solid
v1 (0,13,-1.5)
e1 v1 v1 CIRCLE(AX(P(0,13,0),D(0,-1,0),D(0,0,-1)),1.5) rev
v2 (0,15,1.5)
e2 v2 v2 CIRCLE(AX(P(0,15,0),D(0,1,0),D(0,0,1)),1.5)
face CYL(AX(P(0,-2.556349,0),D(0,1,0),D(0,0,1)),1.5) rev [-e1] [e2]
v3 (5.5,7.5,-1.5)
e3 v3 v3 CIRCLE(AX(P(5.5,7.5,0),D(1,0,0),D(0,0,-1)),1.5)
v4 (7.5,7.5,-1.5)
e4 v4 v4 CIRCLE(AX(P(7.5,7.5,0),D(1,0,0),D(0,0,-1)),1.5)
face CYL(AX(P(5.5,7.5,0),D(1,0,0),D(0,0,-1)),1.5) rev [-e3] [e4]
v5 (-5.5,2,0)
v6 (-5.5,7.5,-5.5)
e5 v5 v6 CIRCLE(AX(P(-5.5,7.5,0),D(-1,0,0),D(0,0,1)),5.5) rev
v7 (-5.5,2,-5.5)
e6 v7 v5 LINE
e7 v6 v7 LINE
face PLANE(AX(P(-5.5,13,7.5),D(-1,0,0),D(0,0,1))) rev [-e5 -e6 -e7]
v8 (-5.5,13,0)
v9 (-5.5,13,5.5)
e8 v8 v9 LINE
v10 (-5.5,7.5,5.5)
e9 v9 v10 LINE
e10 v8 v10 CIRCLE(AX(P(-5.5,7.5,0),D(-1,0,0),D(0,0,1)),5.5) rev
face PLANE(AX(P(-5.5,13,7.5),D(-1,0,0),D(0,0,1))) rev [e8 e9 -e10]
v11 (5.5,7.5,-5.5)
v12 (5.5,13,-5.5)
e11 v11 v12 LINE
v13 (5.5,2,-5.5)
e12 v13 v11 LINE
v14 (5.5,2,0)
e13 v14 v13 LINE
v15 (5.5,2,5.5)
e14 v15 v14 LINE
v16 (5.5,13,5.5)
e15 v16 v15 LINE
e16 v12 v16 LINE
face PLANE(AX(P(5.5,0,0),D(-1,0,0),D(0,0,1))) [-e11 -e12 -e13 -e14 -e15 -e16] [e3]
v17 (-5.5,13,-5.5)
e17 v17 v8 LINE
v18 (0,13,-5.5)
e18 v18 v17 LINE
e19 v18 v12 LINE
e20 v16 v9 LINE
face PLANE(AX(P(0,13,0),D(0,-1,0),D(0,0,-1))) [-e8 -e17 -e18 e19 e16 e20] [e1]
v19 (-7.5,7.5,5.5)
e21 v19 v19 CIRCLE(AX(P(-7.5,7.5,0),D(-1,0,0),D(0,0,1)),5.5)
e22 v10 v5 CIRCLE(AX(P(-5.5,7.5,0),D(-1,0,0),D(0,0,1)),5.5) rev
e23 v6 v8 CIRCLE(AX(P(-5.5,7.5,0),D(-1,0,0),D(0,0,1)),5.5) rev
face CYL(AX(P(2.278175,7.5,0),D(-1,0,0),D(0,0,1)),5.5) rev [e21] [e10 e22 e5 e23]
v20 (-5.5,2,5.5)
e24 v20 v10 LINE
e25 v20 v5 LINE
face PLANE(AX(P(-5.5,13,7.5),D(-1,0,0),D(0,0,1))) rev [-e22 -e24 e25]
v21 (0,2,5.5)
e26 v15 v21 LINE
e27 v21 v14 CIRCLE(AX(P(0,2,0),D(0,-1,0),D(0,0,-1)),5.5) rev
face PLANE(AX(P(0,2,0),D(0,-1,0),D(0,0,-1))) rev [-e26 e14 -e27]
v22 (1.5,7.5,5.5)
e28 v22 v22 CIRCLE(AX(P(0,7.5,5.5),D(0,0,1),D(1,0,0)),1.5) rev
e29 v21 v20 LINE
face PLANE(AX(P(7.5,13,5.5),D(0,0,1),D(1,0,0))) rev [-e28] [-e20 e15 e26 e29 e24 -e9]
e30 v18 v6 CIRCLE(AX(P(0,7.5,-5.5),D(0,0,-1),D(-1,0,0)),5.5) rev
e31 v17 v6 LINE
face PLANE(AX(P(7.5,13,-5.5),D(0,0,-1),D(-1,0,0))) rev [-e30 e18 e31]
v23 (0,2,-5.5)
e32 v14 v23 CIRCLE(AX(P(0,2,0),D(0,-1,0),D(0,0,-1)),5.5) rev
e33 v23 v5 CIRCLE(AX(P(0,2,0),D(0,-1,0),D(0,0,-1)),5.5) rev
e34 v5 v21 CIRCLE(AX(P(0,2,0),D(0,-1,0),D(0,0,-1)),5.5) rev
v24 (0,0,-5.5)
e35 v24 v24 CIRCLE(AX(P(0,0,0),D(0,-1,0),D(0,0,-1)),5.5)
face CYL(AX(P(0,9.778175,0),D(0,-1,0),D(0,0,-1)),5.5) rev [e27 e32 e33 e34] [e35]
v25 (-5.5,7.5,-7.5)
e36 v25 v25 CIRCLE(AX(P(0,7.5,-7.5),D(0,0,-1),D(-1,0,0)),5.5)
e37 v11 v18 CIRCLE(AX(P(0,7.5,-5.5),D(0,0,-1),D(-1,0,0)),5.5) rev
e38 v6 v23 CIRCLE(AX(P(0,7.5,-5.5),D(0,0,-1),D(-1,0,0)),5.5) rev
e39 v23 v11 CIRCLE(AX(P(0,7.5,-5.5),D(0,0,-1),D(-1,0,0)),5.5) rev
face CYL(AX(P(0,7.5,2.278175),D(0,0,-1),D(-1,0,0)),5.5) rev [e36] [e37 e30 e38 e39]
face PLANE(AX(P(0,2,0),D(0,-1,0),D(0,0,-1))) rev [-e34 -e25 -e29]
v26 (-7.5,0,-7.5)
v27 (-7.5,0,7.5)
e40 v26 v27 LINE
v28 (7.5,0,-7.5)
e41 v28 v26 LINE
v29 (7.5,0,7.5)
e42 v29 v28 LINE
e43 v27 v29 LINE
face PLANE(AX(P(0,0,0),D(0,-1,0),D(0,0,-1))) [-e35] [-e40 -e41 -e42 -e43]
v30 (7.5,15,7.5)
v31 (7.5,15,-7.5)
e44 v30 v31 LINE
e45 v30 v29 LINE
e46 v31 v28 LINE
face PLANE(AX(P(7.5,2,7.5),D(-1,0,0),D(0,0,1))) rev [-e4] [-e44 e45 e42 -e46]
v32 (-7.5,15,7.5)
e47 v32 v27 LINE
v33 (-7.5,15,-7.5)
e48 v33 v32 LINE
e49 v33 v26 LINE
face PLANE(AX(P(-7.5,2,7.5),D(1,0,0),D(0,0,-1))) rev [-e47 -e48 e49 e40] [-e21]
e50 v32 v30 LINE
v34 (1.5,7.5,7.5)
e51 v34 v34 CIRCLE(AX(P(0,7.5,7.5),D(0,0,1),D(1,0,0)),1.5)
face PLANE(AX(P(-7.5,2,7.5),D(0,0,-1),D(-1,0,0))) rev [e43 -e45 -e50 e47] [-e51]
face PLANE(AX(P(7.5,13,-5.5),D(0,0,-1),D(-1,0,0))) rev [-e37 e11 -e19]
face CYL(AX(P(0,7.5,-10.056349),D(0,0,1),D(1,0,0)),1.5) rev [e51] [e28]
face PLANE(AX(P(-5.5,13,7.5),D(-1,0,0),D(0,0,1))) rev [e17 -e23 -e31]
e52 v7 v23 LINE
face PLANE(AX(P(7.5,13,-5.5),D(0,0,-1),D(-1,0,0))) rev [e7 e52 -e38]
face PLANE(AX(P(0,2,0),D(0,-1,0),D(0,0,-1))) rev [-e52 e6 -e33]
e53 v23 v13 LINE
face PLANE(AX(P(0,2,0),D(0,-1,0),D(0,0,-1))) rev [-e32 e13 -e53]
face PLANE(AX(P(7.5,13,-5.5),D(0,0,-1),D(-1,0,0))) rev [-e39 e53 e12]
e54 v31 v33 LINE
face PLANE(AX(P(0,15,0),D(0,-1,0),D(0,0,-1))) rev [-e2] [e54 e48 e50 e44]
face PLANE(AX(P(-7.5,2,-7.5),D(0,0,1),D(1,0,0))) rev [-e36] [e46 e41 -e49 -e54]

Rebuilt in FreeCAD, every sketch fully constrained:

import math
import FreeCAD as App
import Part
import Sketcher
from FreeCAD import Vector


def add_polygon(sketch, points):
    """Adds a closed chain of lines whose ends are joined by coincident constraints."""
    first, n = sketch.GeometryCount, len(points)
    for a, b in zip(points, points[1:] + points[:1]):
        sketch.addGeometry(Part.LineSegment(App.Vector(*a, 0), App.Vector(*b, 0)), False)
    for i in range(n):
        sketch.addConstraint(Sketcher.Constraint("Coincident", first + i, 2, first + (i + 1) % n, 1))

doc = App.newDocument("Part")
body = doc.addObject("PartDesign::Body", "Body")

# Sketch on XZ plane
sketch1 = body.newObject("Sketcher::SketchObject", "Sketch")
sketch1.AttachmentSupport = (doc.getObject("XZ_Plane"), [""])
sketch1.MapMode = "FlatFace"
add_polygon(sketch1, [(-7.5, -7.5), (-7.5, 7.5), (7.5, 7.5), (7.5, -7.5)])  # lines 0-3
add_polygon(sketch1, [(5.5, 5.5), (-5.5, 5.5), (-5.5, -5.5), (5.5, -5.5)])  # lines 4-7
sketch1.addConstraint(Sketcher.Constraint("Vertical", 0))
sketch1.addConstraint(Sketcher.Constraint("Horizontal", 1))
sketch1.addConstraint(Sketcher.Constraint("Vertical", 2))
sketch1.addConstraint(Sketcher.Constraint("Horizontal", 3))
sketch1.addConstraint(Sketcher.Constraint("Horizontal", 4))
sketch1.addConstraint(Sketcher.Constraint("Vertical", 5))
sketch1.addConstraint(Sketcher.Constraint("Horizontal", 6))
sketch1.addConstraint(Sketcher.Constraint("Vertical", 7))
sketch1.addConstraint(Sketcher.Constraint("Symmetric", 0, 2, 2, 2, -1, 1))
sketch1.addConstraint(Sketcher.Constraint("Symmetric", 4, 2, 6, 2, -1, 1))
sketch1.addConstraint(Sketcher.Constraint("Equal", 3, 0))
sketch1.addConstraint(Sketcher.Constraint("Equal", 6, 5))
sketch1.addConstraint(Sketcher.Constraint("DistanceX", 1, 1, 1, 2, 15.0))
sketch1.addConstraint(Sketcher.Constraint("DistanceX", 4, 2, 4, 1, 11.0))
pad1 = body.newObject("PartDesign::Pad", "Pad")
pad1.Profile = sketch1
pad1.Length = 2
pad1.Reversed = True

# Sketch on XZ plane
sketch2 = body.newObject("Sketcher::SketchObject", "Sketch001")
sketch2.AttachmentSupport = (doc.getObject("XZ_Plane"), [""])
sketch2.MapMode = "FlatFace"
sketch2.AttachmentOffset = App.Placement(Vector(0, 0, -2), App.Rotation())
add_polygon(sketch2, [(-7.5, 5.5), (-7.5, 7.5), (-5.5, 7.5), (-5.5, 5.5)])  # lines 0-3
add_polygon(sketch2, [(5.5, 5.5), (5.5, 7.5), (7.5, 7.5), (7.5, 5.5)])  # lines 4-7
add_polygon(sketch2, [(5.5, -7.5), (5.5, -5.5), (7.5, -5.5), (7.5, -7.5)])  # lines 8-11
add_polygon(sketch2, [(-7.5, -7.5), (-7.5, -5.5), (-5.5, -5.5), (-5.5, -7.5)])  # lines 12-15
sketch2.addConstraint(Sketcher.Constraint("Vertical", 0))
sketch2.addConstraint(Sketcher.Constraint("Horizontal", 1))
sketch2.addConstraint(Sketcher.Constraint("Vertical", 2))
sketch2.addConstraint(Sketcher.Constraint("Horizontal", 3))
sketch2.addConstraint(Sketcher.Constraint("Vertical", 4))
sketch2.addConstraint(Sketcher.Constraint("Horizontal", 5))
sketch2.addConstraint(Sketcher.Constraint("Vertical", 6))
sketch2.addConstraint(Sketcher.Constraint("Horizontal", 7))
sketch2.addConstraint(Sketcher.Constraint("Vertical", 8))
sketch2.addConstraint(Sketcher.Constraint("Horizontal", 9))
sketch2.addConstraint(Sketcher.Constraint("Vertical", 10))
sketch2.addConstraint(Sketcher.Constraint("Horizontal", 11))
sketch2.addConstraint(Sketcher.Constraint("Vertical", 12))
sketch2.addConstraint(Sketcher.Constraint("Horizontal", 13))
sketch2.addConstraint(Sketcher.Constraint("Vertical", 14))
sketch2.addConstraint(Sketcher.Constraint("Horizontal", 15))
sketch2.addConstraint(Sketcher.Constraint("Symmetric", 2, 2, 8, 2, -1, 1))
sketch2.addConstraint(Sketcher.Constraint("Symmetric", 0, 2, 10, 2, -1, 1))
sketch2.addConstraint(Sketcher.Constraint("Symmetric", 6, 2, 12, 2, -1, 1))
sketch2.addConstraint(Sketcher.Constraint("Symmetric", 4, 2, 14, 2, -1, 1))
sketch2.addConstraint(Sketcher.Constraint("Symmetric", 1, 2, 4, 2, -2))
sketch2.addConstraint(Sketcher.Constraint("Symmetric", 3, 2, 6, 2, -2))
sketch2.addConstraint(Sketcher.Constraint("Equal", 15, 0))
sketch2.addConstraint(Sketcher.Constraint("DistanceX", 1, 1, 1, 2, 2.0))
sketch2.addConstraint(Sketcher.Constraint("DistanceX", 1, 2, 4, 2, 11.0))
sketch2.addConstraint(Sketcher.Constraint("DistanceY", 8, 2, 7, 2, 11.0))
pad2 = body.newObject("PartDesign::Pad", "Pad001")
pad2.Profile = sketch2
pad2.Length = 11
pad2.Reversed = True

# Sketch on XZ plane
sketch3 = body.newObject("Sketcher::SketchObject", "Sketch002")
sketch3.AttachmentSupport = (doc.getObject("XZ_Plane"), [""])
sketch3.MapMode = "FlatFace"
sketch3.AttachmentOffset = App.Placement(Vector(0, 0, -13), App.Rotation())
add_polygon(sketch3, [(-7.5, -7.5), (-7.5, 7.5), (7.5, 7.5), (7.5, -7.5)])  # lines 0-3
add_polygon(sketch3, [(5.5, 5.5), (-5.5, 5.5), (-5.5, -5.5), (5.5, -5.5)])  # lines 4-7
sketch3.addConstraint(Sketcher.Constraint("Vertical", 0))
sketch3.addConstraint(Sketcher.Constraint("Horizontal", 1))
sketch3.addConstraint(Sketcher.Constraint("Vertical", 2))
sketch3.addConstraint(Sketcher.Constraint("Horizontal", 3))
sketch3.addConstraint(Sketcher.Constraint("Horizontal", 4))
sketch3.addConstraint(Sketcher.Constraint("Vertical", 5))
sketch3.addConstraint(Sketcher.Constraint("Horizontal", 6))
sketch3.addConstraint(Sketcher.Constraint("Vertical", 7))
sketch3.addConstraint(Sketcher.Constraint("Symmetric", 0, 2, 2, 2, -1, 1))
sketch3.addConstraint(Sketcher.Constraint("Symmetric", 4, 2, 6, 2, -1, 1))
sketch3.addConstraint(Sketcher.Constraint("Equal", 3, 0))
sketch3.addConstraint(Sketcher.Constraint("Equal", 6, 5))
sketch3.addConstraint(Sketcher.Constraint("DistanceX", 1, 1, 1, 2, 15.0))
sketch3.addConstraint(Sketcher.Constraint("DistanceX", 4, 2, 4, 1, 11.0))
pad3 = body.newObject("PartDesign::Pad", "Pad002")
pad3.Profile = sketch3
pad3.Length = 2
pad3.Reversed = True

# Sketch on XZ plane
sketch4 = body.newObject("Sketcher::SketchObject", "Sketch003")
sketch4.AttachmentSupport = (doc.getObject("XZ_Plane"), [""])
sketch4.MapMode = "FlatFace"
sketch4.addGeometry(Part.LineSegment(Vector(5.5, 0, 0), Vector(5.5, 5.5, 0)), False)
sketch4.addGeometry(Part.LineSegment(Vector(5.5, 5.5, 0), Vector(0, 5.5, 0)), False)
sketch4.addGeometry(Part.ArcOfCircle(Part.Circle(Vector(0, 0, 0), Vector(0, 0, 1), 5.5), math.radians(0), math.radians(90)), False)
sketch4.addGeometry(Part.ArcOfCircle(Part.Circle(Vector(0, 0, 0), Vector(0, 0, 1), 5.5), math.radians(90), math.radians(180)), False)
sketch4.addGeometry(Part.LineSegment(Vector(0, 5.5, 0), Vector(-5.5, 5.5, 0)), False)
sketch4.addGeometry(Part.LineSegment(Vector(-5.5, 5.5, 0), Vector(-5.5, 0, 0)), False)
sketch4.addGeometry(Part.LineSegment(Vector(5.5, -5.5, 0), Vector(5.5, 0, 0)), False)
sketch4.addGeometry(Part.ArcOfCircle(Part.Circle(Vector(0, 0, 0), Vector(0, 0, 1), 5.5), math.radians(-90), math.radians(0)), False)
sketch4.addGeometry(Part.LineSegment(Vector(0, -5.5, 0), Vector(5.5, -5.5, 0)), False)
sketch4.addGeometry(Part.ArcOfCircle(Part.Circle(Vector(0, 0, 0), Vector(0, 0, 1), 5.5), math.radians(180), math.radians(270)), False)
sketch4.addGeometry(Part.LineSegment(Vector(-5.5, 0, 0), Vector(-5.5, -5.5, 0)), False)
sketch4.addGeometry(Part.LineSegment(Vector(-5.5, -5.5, 0), Vector(0, -5.5, 0)), False)
sketch4.addConstraint(Sketcher.Constraint("Coincident", 0, 2, 1, 1))
sketch4.addConstraint(Sketcher.Constraint("Tangent", 1, 2, 2, 2))
sketch4.addConstraint(Sketcher.Constraint("Tangent", 2, 1, 0, 1))
sketch4.addConstraint(Sketcher.Constraint("Tangent", 3, 1, 4, 1))
sketch4.addConstraint(Sketcher.Constraint("Coincident", 4, 2, 5, 1))
sketch4.addConstraint(Sketcher.Constraint("Tangent", 5, 2, 3, 2))
sketch4.addConstraint(Sketcher.Constraint("Tangent", 6, 2, 7, 2))
sketch4.addConstraint(Sketcher.Constraint("Tangent", 7, 1, 8, 1))
sketch4.addConstraint(Sketcher.Constraint("Coincident", 8, 2, 6, 1))
sketch4.addConstraint(Sketcher.Constraint("Tangent", 9, 1, 10, 1))
sketch4.addConstraint(Sketcher.Constraint("Coincident", 10, 2, 11, 1))
sketch4.addConstraint(Sketcher.Constraint("Tangent", 11, 2, 9, 2))
sketch4.addConstraint(Sketcher.Constraint("Vertical", 0))
sketch4.addConstraint(Sketcher.Constraint("Horizontal", 1))
sketch4.addConstraint(Sketcher.Constraint("Horizontal", 4))
sketch4.addConstraint(Sketcher.Constraint("Vertical", 5))
sketch4.addConstraint(Sketcher.Constraint("Vertical", 6))
sketch4.addConstraint(Sketcher.Constraint("Horizontal", 8))
sketch4.addConstraint(Sketcher.Constraint("Vertical", 10))
sketch4.addConstraint(Sketcher.Constraint("Horizontal", 11))
sketch4.addConstraint(Sketcher.Constraint("Coincident", 2, 3, -1, 1))
sketch4.addConstraint(Sketcher.Constraint("Coincident", 3, 3, -1, 1))
sketch4.addConstraint(Sketcher.Constraint("Coincident", 7, 3, -1, 1))
sketch4.addConstraint(Sketcher.Constraint("Coincident", 9, 3, -1, 1))
sketch4.addConstraint(Sketcher.Constraint("Equal", 2, 3))
sketch4.addConstraint(Sketcher.Constraint("Equal", 3, 7))
sketch4.addConstraint(Sketcher.Constraint("Equal", 7, 9))
sketch4.addConstraint(Sketcher.Constraint("Radius", 2, 5.5))
pad4 = body.newObject("PartDesign::Pad", "Pad003")
pad4.Profile = sketch4
pad4.Length = 2
pad4.Reversed = True

# Sketch on XY plane
sketch5 = body.newObject("Sketcher::SketchObject", "Sketch004")
sketch5.AttachmentSupport = (doc.getObject("XY_Plane"), [""])
sketch5.MapMode = "FlatFace"
sketch5.AttachmentOffset = App.Placement(Vector(0, 0, -7.5), App.Rotation())
sketch5.addGeometry(Part.LineSegment(Vector(5.5, 13, 0), Vector(5.5, 7.5, 0)), False)
sketch5.addGeometry(Part.ArcOfCircle(Part.Circle(Vector(0, 7.5, 0), Vector(0, 0, 1), 5.5), math.radians(0), math.radians(90)), False)
sketch5.addGeometry(Part.LineSegment(Vector(0, 13, 0), Vector(5.5, 13, 0)), False)
sketch5.addGeometry(Part.ArcOfCircle(Part.Circle(Vector(0, 7.5, 0), Vector(0, 0, 1), 5.5), math.radians(90), math.radians(180)), False)
sketch5.addGeometry(Part.LineSegment(Vector(-5.5, 7.5, 0), Vector(-5.5, 13, 0)), False)
sketch5.addGeometry(Part.LineSegment(Vector(-5.5, 13, 0), Vector(0, 13, 0)), False)
sketch5.addGeometry(Part.ArcOfCircle(Part.Circle(Vector(0, 7.5, 0), Vector(0, 0, 1), 5.5), math.radians(180), math.radians(270)), False)
sketch5.addGeometry(Part.LineSegment(Vector(0, 2, 0), Vector(-5.5, 2, 0)), False)
sketch5.addGeometry(Part.LineSegment(Vector(-5.5, 2, 0), Vector(-5.5, 7.5, 0)), False)
sketch5.addGeometry(Part.LineSegment(Vector(5.5, 7.5, 0), Vector(5.5, 2, 0)), False)
sketch5.addGeometry(Part.LineSegment(Vector(5.5, 2, 0), Vector(0, 2, 0)), False)
sketch5.addGeometry(Part.ArcOfCircle(Part.Circle(Vector(0, 7.5, 0), Vector(0, 0, 1), 5.5), math.radians(-90), math.radians(0)), False)
sketch5.addConstraint(Sketcher.Constraint("Tangent", 0, 2, 1, 1))
sketch5.addConstraint(Sketcher.Constraint("Tangent", 1, 2, 2, 1))
sketch5.addConstraint(Sketcher.Constraint("Coincident", 2, 2, 0, 1))
sketch5.addConstraint(Sketcher.Constraint("Tangent", 3, 2, 4, 1))
sketch5.addConstraint(Sketcher.Constraint("Coincident", 4, 2, 5, 1))
sketch5.addConstraint(Sketcher.Constraint("Tangent", 5, 2, 3, 1))
sketch5.addConstraint(Sketcher.Constraint("Tangent", 6, 2, 7, 1))
sketch5.addConstraint(Sketcher.Constraint("Coincident", 7, 2, 8, 1))
sketch5.addConstraint(Sketcher.Constraint("Tangent", 8, 2, 6, 1))
sketch5.addConstraint(Sketcher.Constraint("Coincident", 9, 2, 10, 1))
sketch5.addConstraint(Sketcher.Constraint("Tangent", 10, 2, 11, 1))
sketch5.addConstraint(Sketcher.Constraint("Tangent", 11, 2, 9, 1))
sketch5.addConstraint(Sketcher.Constraint("Vertical", 0))
sketch5.addConstraint(Sketcher.Constraint("Horizontal", 2))
sketch5.addConstraint(Sketcher.Constraint("Vertical", 4))
sketch5.addConstraint(Sketcher.Constraint("Horizontal", 5))
sketch5.addConstraint(Sketcher.Constraint("Horizontal", 7))
sketch5.addConstraint(Sketcher.Constraint("Vertical", 8))
sketch5.addConstraint(Sketcher.Constraint("Vertical", 9))
sketch5.addConstraint(Sketcher.Constraint("Horizontal", 10))
sketch5.addConstraint(Sketcher.Constraint("Coincident", 3, 3, 1, 3))
sketch5.addConstraint(Sketcher.Constraint("Coincident", 6, 3, 1, 3))
sketch5.addConstraint(Sketcher.Constraint("Coincident", 11, 3, 1, 3))
sketch5.addConstraint(Sketcher.Constraint("Equal", 1, 3))
sketch5.addConstraint(Sketcher.Constraint("Equal", 3, 6))
sketch5.addConstraint(Sketcher.Constraint("Equal", 6, 11))
sketch5.addConstraint(Sketcher.Constraint("PointOnObject", 1, 3, -2))
sketch5.addConstraint(Sketcher.Constraint("Radius", 1, 5.5))
sketch5.addConstraint(Sketcher.Constraint("DistanceY", -1, 1, 1, 2, 13.0))
pad5 = body.newObject("PartDesign::Pad", "Pad004")
pad5.Profile = sketch5
pad5.Length = 2

# Sketch on YZ plane
sketch6 = body.newObject("Sketcher::SketchObject", "Sketch005")
sketch6.AttachmentSupport = (doc.getObject("YZ_Plane"), [""])
sketch6.MapMode = "FlatFace"
sketch6.AttachmentOffset = App.Placement(Vector(0, 0, -7.5), App.Rotation())
sketch6.addGeometry(Part.LineSegment(Vector(13, -5.5, 0), Vector(7.5, -5.5, 0)), False)
sketch6.addGeometry(Part.ArcOfCircle(Part.Circle(Vector(7.5, 0, 0), Vector(0, 0, 1), 5.5), math.radians(-90), math.radians(0)), False)
sketch6.addGeometry(Part.LineSegment(Vector(13, 0, 0), Vector(13, -5.5, 0)), False)
sketch6.addGeometry(Part.ArcOfCircle(Part.Circle(Vector(7.5, 0, 0), Vector(0, 0, 1), 5.5), math.radians(0), math.radians(90)), False)
sketch6.addGeometry(Part.LineSegment(Vector(7.5, 5.5, 0), Vector(13, 5.5, 0)), False)
sketch6.addGeometry(Part.LineSegment(Vector(13, 5.5, 0), Vector(13, 0, 0)), False)
sketch6.addGeometry(Part.LineSegment(Vector(7.5, -5.5, 0), Vector(2, -5.5, 0)), False)
sketch6.addGeometry(Part.LineSegment(Vector(2, -5.5, 0), Vector(2, 0, 0)), False)
sketch6.addGeometry(Part.ArcOfCircle(Part.Circle(Vector(7.5, 0, 0), Vector(0, 0, 1), 5.5), math.radians(-180), math.radians(-90)), False)
sketch6.addGeometry(Part.ArcOfCircle(Part.Circle(Vector(7.5, 0, 0), Vector(0, 0, 1), 5.5), math.radians(90), math.radians(180)), False)
sketch6.addGeometry(Part.LineSegment(Vector(2, 0, 0), Vector(2, 5.5, 0)), False)
sketch6.addGeometry(Part.LineSegment(Vector(2, 5.5, 0), Vector(7.5, 5.5, 0)), False)
sketch6.addConstraint(Sketcher.Constraint("Tangent", 0, 2, 1, 1))
sketch6.addConstraint(Sketcher.Constraint("Tangent", 1, 2, 2, 1))
sketch6.addConstraint(Sketcher.Constraint("Coincident", 2, 2, 0, 1))
sketch6.addConstraint(Sketcher.Constraint("Tangent", 3, 2, 4, 1))
sketch6.addConstraint(Sketcher.Constraint("Coincident", 4, 2, 5, 1))
sketch6.addConstraint(Sketcher.Constraint("Tangent", 5, 2, 3, 1))
sketch6.addConstraint(Sketcher.Constraint("Coincident", 6, 2, 7, 1))
sketch6.addConstraint(Sketcher.Constraint("Tangent", 7, 2, 8, 1))
sketch6.addConstraint(Sketcher.Constraint("Tangent", 8, 2, 6, 1))
sketch6.addConstraint(Sketcher.Constraint("Tangent", 9, 2, 10, 1))
sketch6.addConstraint(Sketcher.Constraint("Coincident", 10, 2, 11, 1))
sketch6.addConstraint(Sketcher.Constraint("Tangent", 11, 2, 9, 1))
sketch6.addConstraint(Sketcher.Constraint("Horizontal", 0))
sketch6.addConstraint(Sketcher.Constraint("Vertical", 2))
sketch6.addConstraint(Sketcher.Constraint("Horizontal", 4))
sketch6.addConstraint(Sketcher.Constraint("Vertical", 5))
sketch6.addConstraint(Sketcher.Constraint("Horizontal", 6))
sketch6.addConstraint(Sketcher.Constraint("Vertical", 7))
sketch6.addConstraint(Sketcher.Constraint("Vertical", 10))
sketch6.addConstraint(Sketcher.Constraint("Horizontal", 11))
sketch6.addConstraint(Sketcher.Constraint("Coincident", 3, 3, 1, 3))
sketch6.addConstraint(Sketcher.Constraint("Coincident", 8, 3, 1, 3))
sketch6.addConstraint(Sketcher.Constraint("Coincident", 9, 3, 1, 3))
sketch6.addConstraint(Sketcher.Constraint("Equal", 1, 3))
sketch6.addConstraint(Sketcher.Constraint("Equal", 3, 8))
sketch6.addConstraint(Sketcher.Constraint("Equal", 8, 9))
sketch6.addConstraint(Sketcher.Constraint("PointOnObject", 1, 3, -1))
sketch6.addConstraint(Sketcher.Constraint("Radius", 1, 5.5))
sketch6.addConstraint(Sketcher.Constraint("DistanceX", -1, 1, 1, 2, 13.0))
pad6 = body.newObject("PartDesign::Pad", "Pad005")
pad6.Profile = sketch6
pad6.Length = 2

# Sketch on XY plane
sketch7 = body.newObject("Sketcher::SketchObject", "Sketch006")
sketch7.AttachmentSupport = (doc.getObject("XY_Plane"), [""])
sketch7.MapMode = "FlatFace"
sketch7.AttachmentOffset = App.Placement(Vector(0, 0, 7.5), App.Rotation())
add_polygon(sketch7, [(-5.5, 13), (-5.5, 2), (5.5, 2), (5.5, 13)])  # lines 0-3
sketch7.addGeometry(Part.Circle(Vector(0, 7.5, 0), Vector(0, 0, 1), 1.5), False)  # 4
sketch7.addConstraint(Sketcher.Constraint("Vertical", 0))
sketch7.addConstraint(Sketcher.Constraint("Horizontal", 1))
sketch7.addConstraint(Sketcher.Constraint("Vertical", 2))
sketch7.addConstraint(Sketcher.Constraint("Horizontal", 3))
sketch7.addConstraint(Sketcher.Constraint("PointOnObject", 4, 3, -2))
sketch7.addConstraint(Sketcher.Constraint("Equal", 3, 0))
sketch7.addConstraint(Sketcher.Constraint("Diameter", 4, 3.0))
sketch7.addConstraint(Sketcher.Constraint("DistanceX", 1, 1, 1, 2, 11.0))
sketch7.addConstraint(Sketcher.Constraint("DistanceY", -1, 1, 0, 2, 2.0))
sketch7.addConstraint(Sketcher.Constraint("DistanceY", -1, 1, 4, 3, 7.5))
sketch7.addConstraint(Sketcher.Constraint("DistanceX", 0, 2, -1, 1, 5.5))
pad7 = body.newObject("PartDesign::Pad", "Pad006")
pad7.Profile = sketch7
pad7.Length = 2
pad7.Reversed = True

# Sketch on XZ plane
sketch8 = body.newObject("Sketcher::SketchObject", "Sketch007")
sketch8.AttachmentSupport = (doc.getObject("XZ_Plane"), [""])
sketch8.MapMode = "FlatFace"
sketch8.AttachmentOffset = App.Placement(Vector(0, 0, -15), App.Rotation())
add_polygon(sketch8, [(-5.5, -5.5), (-5.5, 5.5), (5.5, 5.5), (5.5, -5.5)])  # lines 0-3
sketch8.addGeometry(Part.Circle(Vector(0, 0, 0), Vector(0, 0, 1), 1.5), False)  # 4
sketch8.addConstraint(Sketcher.Constraint("Vertical", 0))
sketch8.addConstraint(Sketcher.Constraint("Horizontal", 1))
sketch8.addConstraint(Sketcher.Constraint("Vertical", 2))
sketch8.addConstraint(Sketcher.Constraint("Horizontal", 3))
sketch8.addConstraint(Sketcher.Constraint("Coincident", 4, 3, -1, 1))
sketch8.addConstraint(Sketcher.Constraint("Symmetric", 0, 2, 2, 2, -1, 1))
sketch8.addConstraint(Sketcher.Constraint("Equal", 3, 0))
sketch8.addConstraint(Sketcher.Constraint("Diameter", 4, 3.0))
sketch8.addConstraint(Sketcher.Constraint("DistanceX", 1, 1, 1, 2, 11.0))
pad8 = body.newObject("PartDesign::Pad", "Pad007")
pad8.Profile = sketch8
pad8.Length = 2

# Sketch on YZ plane
sketch9 = body.newObject("Sketcher::SketchObject", "Sketch008")
sketch9.AttachmentSupport = (doc.getObject("YZ_Plane"), [""])
sketch9.MapMode = "FlatFace"
sketch9.AttachmentOffset = App.Placement(Vector(0, 0, 5.5), App.Rotation())
add_polygon(sketch9, [(13, 5.5), (2, 5.5), (2, -5.5), (13, -5.5)])  # lines 0-3
sketch9.addGeometry(Part.Circle(Vector(7.5, 0, 0), Vector(0, 0, 1), 1.5), False)  # 4
sketch9.addConstraint(Sketcher.Constraint("Horizontal", 0))
sketch9.addConstraint(Sketcher.Constraint("Vertical", 1))
sketch9.addConstraint(Sketcher.Constraint("Horizontal", 2))
sketch9.addConstraint(Sketcher.Constraint("Vertical", 3))
sketch9.addConstraint(Sketcher.Constraint("PointOnObject", 4, 3, -1))
sketch9.addConstraint(Sketcher.Constraint("Equal", 2, 1))
sketch9.addConstraint(Sketcher.Constraint("Diameter", 4, 3.0))
sketch9.addConstraint(Sketcher.Constraint("DistanceX", 0, 2, 0, 1, 11.0))
sketch9.addConstraint(Sketcher.Constraint("DistanceX", -1, 1, 0, 2, 2.0))
sketch9.addConstraint(Sketcher.Constraint("DistanceX", -1, 1, 4, 3, 7.5))
sketch9.addConstraint(Sketcher.Constraint("DistanceY", -1, 1, 0, 2, 5.5))
pad9 = body.newObject("PartDesign::Pad", "Pad008")
pad9.Profile = sketch9
pad9.Length = 2

doc.recompute()
